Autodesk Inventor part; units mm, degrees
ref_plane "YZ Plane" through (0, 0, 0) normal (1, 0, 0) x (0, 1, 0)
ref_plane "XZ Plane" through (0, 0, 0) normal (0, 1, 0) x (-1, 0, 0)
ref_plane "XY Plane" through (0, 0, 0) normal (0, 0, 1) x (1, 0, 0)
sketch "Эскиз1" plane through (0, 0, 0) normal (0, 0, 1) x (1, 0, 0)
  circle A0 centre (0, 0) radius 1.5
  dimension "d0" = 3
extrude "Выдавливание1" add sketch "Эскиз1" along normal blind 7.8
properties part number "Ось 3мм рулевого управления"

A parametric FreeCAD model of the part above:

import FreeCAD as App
import Part
import Sketcher
from FreeCAD import Vector

doc = App.newDocument("Part")
body = doc.addObject("PartDesign::Body", "Body")

# Sketch on XY plane
sketch1 = doc.addObject("Sketcher::SketchObject", "Sketch")
body.addObject(sketch1)
sketch1.AttachmentSupport = (doc.XY_Plane, [""])
sketch1.MapMode = "FlatFace"
sketch1.addGeometry(Part.Circle(Vector(0, 0, 0), Vector(0, 0, 1), 1.5), False)
sketch1.addConstraint([
    Sketcher.Constraint("Coincident", 0, 3, -1, 1),
    Sketcher.Constraint("Diameter", 0, 3.0),
])
pad1 = doc.addObject("PartDesign::Pad", "Pad")
body.addObject(pad1)
pad1.Profile = sketch1
pad1.Length = 7.8

doc.recompute()
